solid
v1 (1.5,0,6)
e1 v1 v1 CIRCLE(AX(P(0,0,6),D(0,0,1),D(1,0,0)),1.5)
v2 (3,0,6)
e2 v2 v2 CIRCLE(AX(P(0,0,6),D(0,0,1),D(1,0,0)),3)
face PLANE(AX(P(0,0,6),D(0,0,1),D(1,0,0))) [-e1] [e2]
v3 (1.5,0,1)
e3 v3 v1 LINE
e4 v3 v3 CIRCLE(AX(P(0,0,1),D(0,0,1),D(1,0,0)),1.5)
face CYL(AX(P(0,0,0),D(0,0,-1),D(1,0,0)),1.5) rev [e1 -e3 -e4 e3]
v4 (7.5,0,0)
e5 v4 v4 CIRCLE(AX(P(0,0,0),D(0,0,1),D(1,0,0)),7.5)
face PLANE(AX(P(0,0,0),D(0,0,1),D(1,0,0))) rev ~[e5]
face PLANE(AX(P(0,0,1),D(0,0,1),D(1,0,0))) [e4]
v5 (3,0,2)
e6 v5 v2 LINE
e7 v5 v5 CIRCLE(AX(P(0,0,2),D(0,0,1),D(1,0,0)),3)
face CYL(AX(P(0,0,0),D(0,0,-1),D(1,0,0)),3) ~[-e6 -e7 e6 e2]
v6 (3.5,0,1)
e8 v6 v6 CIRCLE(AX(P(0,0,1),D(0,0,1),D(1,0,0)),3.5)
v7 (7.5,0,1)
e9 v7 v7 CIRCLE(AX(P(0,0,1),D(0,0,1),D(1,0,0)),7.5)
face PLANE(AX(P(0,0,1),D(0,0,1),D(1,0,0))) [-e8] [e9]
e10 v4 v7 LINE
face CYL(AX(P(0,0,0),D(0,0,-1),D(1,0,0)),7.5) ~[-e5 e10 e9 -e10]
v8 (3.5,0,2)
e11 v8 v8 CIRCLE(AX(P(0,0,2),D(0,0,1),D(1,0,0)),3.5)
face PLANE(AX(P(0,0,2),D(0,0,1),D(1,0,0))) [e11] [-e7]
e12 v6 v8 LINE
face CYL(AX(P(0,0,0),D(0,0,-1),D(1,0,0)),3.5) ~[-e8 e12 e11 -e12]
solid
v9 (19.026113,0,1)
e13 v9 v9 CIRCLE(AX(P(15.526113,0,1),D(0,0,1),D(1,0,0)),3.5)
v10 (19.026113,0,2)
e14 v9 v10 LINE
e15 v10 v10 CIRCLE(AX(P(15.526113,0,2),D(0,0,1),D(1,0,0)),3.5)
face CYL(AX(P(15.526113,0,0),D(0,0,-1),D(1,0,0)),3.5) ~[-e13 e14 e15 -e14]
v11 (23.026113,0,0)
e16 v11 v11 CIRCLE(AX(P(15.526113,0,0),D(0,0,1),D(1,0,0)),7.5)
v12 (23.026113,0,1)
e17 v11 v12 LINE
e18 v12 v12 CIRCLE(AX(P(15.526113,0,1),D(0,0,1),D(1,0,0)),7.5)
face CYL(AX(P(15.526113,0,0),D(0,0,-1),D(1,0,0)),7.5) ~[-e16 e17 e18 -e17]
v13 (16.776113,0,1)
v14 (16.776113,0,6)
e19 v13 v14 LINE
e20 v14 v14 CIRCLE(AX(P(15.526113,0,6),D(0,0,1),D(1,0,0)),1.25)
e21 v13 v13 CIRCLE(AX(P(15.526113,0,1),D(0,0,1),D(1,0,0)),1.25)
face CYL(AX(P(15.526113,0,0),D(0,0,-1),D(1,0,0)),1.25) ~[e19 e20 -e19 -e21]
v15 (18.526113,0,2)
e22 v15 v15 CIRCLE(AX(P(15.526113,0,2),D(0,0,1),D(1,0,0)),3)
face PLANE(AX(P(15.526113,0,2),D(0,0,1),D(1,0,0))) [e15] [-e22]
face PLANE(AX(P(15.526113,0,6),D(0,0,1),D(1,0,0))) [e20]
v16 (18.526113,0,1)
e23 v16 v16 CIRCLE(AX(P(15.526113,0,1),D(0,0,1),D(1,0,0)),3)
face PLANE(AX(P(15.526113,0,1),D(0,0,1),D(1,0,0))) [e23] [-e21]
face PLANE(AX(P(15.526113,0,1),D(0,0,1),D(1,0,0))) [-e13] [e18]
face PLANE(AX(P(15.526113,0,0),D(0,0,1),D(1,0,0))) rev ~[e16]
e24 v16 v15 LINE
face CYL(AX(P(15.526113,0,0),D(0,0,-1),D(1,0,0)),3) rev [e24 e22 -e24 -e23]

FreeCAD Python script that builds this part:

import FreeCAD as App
import Part
import Sketcher
Q = App.Units.Quantity

doc = App.newDocument("Part")
params = doc.addObject("Spreadsheet::Sheet", "Params")
for row, (alias, value) in enumerate([
    ("sketch1_diameter", "15 mm"),
    ("sketch1_diameter2", "7 mm"),
    ("pad1_length", "1 mm"),
    ("sketch2_diameter", "7 mm"),
    ("sketch2_diameter2", "6 mm"),
    ("pad2_length", "2 mm"),
    ("sketch3_diameter", "6 mm"),
    ("sketch3_diameter2", "3 mm"),
    ("sketch3_diameter3", "2.5 mm"),
    ("pad3_length", "6 mm"),
    ("sketch4_diameter", "3 mm"),
    ("sketch4_diameter2", "6 mm"),
    ("sketch4_diameter3", "2.5 mm"),
    ("pad4_length", "1 mm"),
], start=1):
    params.set(f"A{row}", alias)
    params.set(f"B{row}", "=" + value)
    params.setAlias(f"B{row}", alias)

body = doc.addObject("PartDesign::Body", "Body")
body.AllowCompound = True

# Sketch on XY plane
sketch1 = body.newObject("Sketcher::SketchObject", "Sketch")
sketch1.AttachmentSupport = (doc.getObject("XY_Plane"), [""])
sketch1.MapMode = "FlatFace"
sketch1.addGeometry([
    Part.Circle(App.Vector(0, 0, 0), App.Vector(0, 0, 1), 7.5),
    Part.Circle(App.Vector(0, 0, 0), App.Vector(0, 0, 1), 3.5),
    Part.Circle(App.Vector(15.5, 0, 0), App.Vector(0, 0, 1), 7.5),
    Part.Circle(App.Vector(15.5, 0, 0), App.Vector(0, 0, 1), 3.5),
], False)
sketch1.addConstraint([
    Sketcher.Constraint("Coincident", 0, 3, -1, 1),
    Sketcher.Constraint("Coincident", 1, 3, -1, 1),
    Sketcher.Constraint("Coincident", 3, 3, 2, 3),
    Sketcher.Constraint("Equal", 0, 2),
    Sketcher.Constraint("Equal", 1, 3),
    Sketcher.Constraint("PointOnObject", 2, 3, -1),
    Sketcher.Constraint("Diameter", 0, Q("15 mm")),
    Sketcher.Constraint("Diameter", 1, Q("7 mm")),
    Sketcher.Constraint("DistanceX", -1, 1, 2, 3, Q("15.526113 mm")),
])
sketch1.setExpression("Constraints[6]", "Params.sketch1_diameter")
sketch1.setExpression("Constraints[7]", "Params.sketch1_diameter2")
pad1 = body.newObject("PartDesign::Pad", "Pad")
pad1.Profile = sketch1
pad1.setExpression("Length", "Params.pad1_length")

# Sketch on XY plane
sketch2 = body.newObject("Sketcher::SketchObject", "Sketch001")
sketch2.AttachmentSupport = (doc.getObject("XY_Plane"), [""])
sketch2.MapMode = "FlatFace"
sketch2.addGeometry([
    Part.Circle(App.Vector(0, 0, 0), App.Vector(0, 0, 1), 3.5),
    Part.Circle(App.Vector(0, 0, 0), App.Vector(0, 0, 1), 3),
    Part.Circle(App.Vector(15.5, 0, 0), App.Vector(0, 0, 1), 3.5),
    Part.Circle(App.Vector(15.5, 0, 0), App.Vector(0, 0, 1), 3),
], False)
sketch2.addConstraint([
    Sketcher.Constraint("Coincident", 0, 3, -1, 1),
    Sketcher.Constraint("Coincident", 1, 3, -1, 1),
    Sketcher.Constraint("Coincident", 3, 3, 2, 3),
    Sketcher.Constraint("Equal", 0, 2),
    Sketcher.Constraint("Equal", 1, 3),
    Sketcher.Constraint("PointOnObject", 2, 3, -1),
    Sketcher.Constraint("Diameter", 0, Q("7 mm")),
    Sketcher.Constraint("Diameter", 1, Q("6 mm")),
    Sketcher.Constraint("DistanceX", -1, 1, 2, 3, Q("15.526113 mm")),
])
sketch2.setExpression("Constraints[6]", "Params.sketch2_diameter")
sketch2.setExpression("Constraints[7]", "Params.sketch2_diameter2")
pad2 = body.newObject("PartDesign::Pad", "Pad001")
pad2.Profile = sketch2
pad2.setExpression("Length", "Params.pad2_length")

# Sketch on XY plane
sketch3 = body.newObject("Sketcher::SketchObject", "Sketch002")
sketch3.AttachmentSupport = (doc.getObject("XY_Plane"), [""])
sketch3.MapMode = "FlatFace"
sketch3.addGeometry([
    Part.Circle(App.Vector(0, 0, 0), App.Vector(0, 0, 1), 3),
    Part.Circle(App.Vector(0, 0, 0), App.Vector(0, 0, 1), 1.5),
    Part.Circle(App.Vector(15.5, 0, 0), App.Vector(0, 0, 1), 1.2),
], False)
sketch3.addConstraint([
    Sketcher.Constraint("Coincident", 0, 3, -1, 1),
    Sketcher.Constraint("Coincident", 1, 3, -1, 1),
    Sketcher.Constraint("PointOnObject", 2, 3, -1),
    Sketcher.Constraint("Diameter", 0, Q("6 mm")),
    Sketcher.Constraint("Diameter", 1, Q("3 mm")),
    Sketcher.Constraint("Diameter", 2, Q("2.5 mm")),
    Sketcher.Constraint("DistanceX", -1, 1, 2, 3, Q("15.526113 mm")),
])
sketch3.setExpression("Constraints[3]", "Params.sketch3_diameter")
sketch3.setExpression("Constraints[4]", "Params.sketch3_diameter2")
sketch3.setExpression("Constraints[5]", "Params.sketch3_diameter3")
pad3 = body.newObject("PartDesign::Pad", "Pad002")
pad3.Profile = sketch3
pad3.setExpression("Length", "Params.pad3_length")

# Sketch on XY plane
sketch4 = body.newObject("Sketcher::SketchObject", "Sketch003")
sketch4.AttachmentSupport = (doc.getObject("XY_Plane"), [""])
sketch4.MapMode = "FlatFace"
sketch4.addGeometry([
    Part.Circle(App.Vector(0, 0, 0), App.Vector(0, 0, 1), 1.5),
    Part.Circle(App.Vector(15.5, 0, 0), App.Vector(0, 0, 1), 3),
    Part.Circle(App.Vector(15.5, 0, 0), App.Vector(0, 0, 1), 1.2),
], False)
sketch4.addConstraint([
    Sketcher.Constraint("Coincident", 0, 3, -1, 1),
    Sketcher.Constraint("Coincident", 2, 3, 1, 3),
    Sketcher.Constraint("PointOnObject", 1, 3, -1),
    Sketcher.Constraint("Diameter", 0, Q("3 mm")),
    Sketcher.Constraint("Diameter", 1, Q("6 mm")),
    Sketcher.Constraint("Diameter", 2, Q("2.5 mm")),
    Sketcher.Constraint("DistanceX", -1, 1, 1, 3, Q("15.526113 mm")),
])
sketch4.setExpression("Constraints[3]", "Params.sketch4_diameter")
sketch4.setExpression("Constraints[4]", "Params.sketch4_diameter2")
sketch4.setExpression("Constraints[5]", "Params.sketch4_diameter3")
pad4 = body.newObject("PartDesign::Pad", "Pad003")
pad4.Profile = sketch4
pad4.setExpression("Length", "Params.pad4_length")

doc.recompute()
